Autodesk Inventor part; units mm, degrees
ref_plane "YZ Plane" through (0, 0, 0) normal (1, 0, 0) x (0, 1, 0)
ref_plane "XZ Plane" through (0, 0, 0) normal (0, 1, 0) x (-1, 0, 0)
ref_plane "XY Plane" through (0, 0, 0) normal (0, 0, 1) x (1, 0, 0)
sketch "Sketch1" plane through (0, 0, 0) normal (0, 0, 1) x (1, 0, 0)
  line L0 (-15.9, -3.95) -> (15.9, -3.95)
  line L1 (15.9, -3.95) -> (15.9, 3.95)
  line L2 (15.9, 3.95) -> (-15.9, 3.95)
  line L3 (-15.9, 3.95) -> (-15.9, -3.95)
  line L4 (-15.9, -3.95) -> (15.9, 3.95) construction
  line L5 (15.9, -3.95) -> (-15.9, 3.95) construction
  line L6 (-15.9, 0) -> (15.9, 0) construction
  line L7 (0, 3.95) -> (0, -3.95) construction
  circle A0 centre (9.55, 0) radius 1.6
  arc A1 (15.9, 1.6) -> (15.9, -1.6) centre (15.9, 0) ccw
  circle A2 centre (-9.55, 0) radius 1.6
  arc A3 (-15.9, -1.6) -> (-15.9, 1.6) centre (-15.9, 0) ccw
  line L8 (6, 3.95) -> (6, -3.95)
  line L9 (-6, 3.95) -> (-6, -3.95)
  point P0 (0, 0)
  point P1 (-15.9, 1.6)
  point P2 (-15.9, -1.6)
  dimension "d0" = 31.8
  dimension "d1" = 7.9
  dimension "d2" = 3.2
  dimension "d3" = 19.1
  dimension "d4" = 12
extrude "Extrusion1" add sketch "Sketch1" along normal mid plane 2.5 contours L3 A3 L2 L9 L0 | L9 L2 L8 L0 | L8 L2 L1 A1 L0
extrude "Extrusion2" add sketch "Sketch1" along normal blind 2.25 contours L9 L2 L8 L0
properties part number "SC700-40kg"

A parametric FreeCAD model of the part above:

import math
import FreeCAD as App
import Part
import Sketcher
from FreeCAD import Vector


def add_polygon(sketch, points):
    """Adds a closed chain of lines whose ends are joined by coincident constraints."""
    first, n = sketch.GeometryCount, len(points)
    for a, b in zip(points, points[1:] + points[:1]):
        sketch.addGeometry(Part.LineSegment(App.Vector(*a, 0), App.Vector(*b, 0)), False)
    for i in range(n):
        sketch.addConstraint(Sketcher.Constraint("Coincident", first + i, 2, first + (i + 1) % n, 1))

doc = App.newDocument("Part")
body = doc.addObject("PartDesign::Body", "Body")

sketch1 = body.newObject("Sketcher::SketchObject", "Sketch")
sketch1.AttachmentSupport = (doc.getObject("XY_Plane"), [""])
sketch1.MapMode = "FlatFace"
sketch1.addGeometry([
    Part.LineSegment(Vector(-15.9, -1.6, 0), Vector(-15.9, -4, 0)),
    Part.LineSegment(Vector(-15.9, -4, 0), Vector(15.9, -4, 0)),
    Part.LineSegment(Vector(15.9, -4, 0), Vector(15.9, -1.6, 0)),
    Part.ArcOfCircle(Part.Circle(Vector(15.9, 0, 0), Vector(0, 0, 1), 1.6), math.radians(90), math.radians(270)),
    Part.LineSegment(Vector(15.9, 1.6, 0), Vector(15.9, 4, 0)),
    Part.LineSegment(Vector(15.9, 4, 0), Vector(-15.9, 4, 0)),
    Part.LineSegment(Vector(-15.9, 4, 0), Vector(-15.9, 1.6, 0)),
    Part.ArcOfCircle(Part.Circle(Vector(-15.9, 0, 0), Vector(0, 0, 1), 1.6), math.radians(-90), math.radians(90)),
    Part.Circle(Vector(-9.6, 0, 0), Vector(0, 0, 1), 1.6),
    Part.Circle(Vector(9.6, 0, 0), Vector(0, 0, 1), 1.6),
], False)
sketch1.addConstraint([
    Sketcher.Constraint("Coincident", 0, 2, 1, 1),
    Sketcher.Constraint("Coincident", 1, 2, 2, 1),
    Sketcher.Constraint("Coincident", 2, 2, 3, 2),
    Sketcher.Constraint("Coincident", 3, 1, 4, 1),
    Sketcher.Constraint("Coincident", 4, 2, 5, 1),
    Sketcher.Constraint("Coincident", 5, 2, 6, 1),
    Sketcher.Constraint("Coincident", 6, 2, 7, 2),
    Sketcher.Constraint("Coincident", 7, 1, 0, 1),
    Sketcher.Constraint("Vertical", 0),
    Sketcher.Constraint("Horizontal", 1),
    Sketcher.Constraint("Vertical", 2),
    Sketcher.Constraint("Vertical", 4),
    Sketcher.Constraint("Horizontal", 5),
    Sketcher.Constraint("Vertical", 6),
    Sketcher.Constraint("Equal", 3, 7),
    Sketcher.Constraint("Equal", 7, 8),
    Sketcher.Constraint("Equal", 8, 9),
    Sketcher.Constraint("Symmetric", 3, 3, 7, 3, -1, 1),
    Sketcher.Constraint("Symmetric", 8, 3, 9, 3, -1, 1),
    Sketcher.Constraint("Symmetric", 0, 2, 4, 2, -1, 1),
    Sketcher.Constraint("Symmetric", 3, 1, 6, 2, -2),
    Sketcher.Constraint("PointOnObject", 8, 3, -1),
    Sketcher.Constraint("Vertical", 7, 3, 0, 2),
    Sketcher.Constraint("Vertical", 3, 3, 1, 2),
    Sketcher.Constraint("Diameter", 8, 3.2),
    Sketcher.Constraint("DistanceX", 1, 1, 1, 2, 31.8),
    Sketcher.Constraint("DistanceX", 8, 3, 9, 3, 19.1),
    Sketcher.Constraint("DistanceY", 1, 2, 4, 2, 7.9),
])
pad1 = body.newObject("PartDesign::Pad", "Pad")
pad1.Profile = sketch1
pad1.Length = 2.5
pad1.Midplane = True

sketch2 = body.newObject("Sketcher::SketchObject", "Sketch001")
sketch2.AttachmentSupport = (doc.getObject("XY_Plane"), [""])
sketch2.MapMode = "FlatFace"
add_polygon(sketch2, [(-6, 4), (-6, -4), (6, -4), (6, 4)])
sketch2.addConstraint([
    Sketcher.Constraint("Vertical", 0),
    Sketcher.Constraint("Horizontal", 1),
    Sketcher.Constraint("Vertical", 2),
    Sketcher.Constraint("Horizontal", 3),
    Sketcher.Constraint("Symmetric", 0, 2, 2, 2, -1, 1),
    Sketcher.Constraint("DistanceX", 1, 1, 1, 2, 12.0),
    Sketcher.Constraint("DistanceY", 0, 2, 0, 1, 7.9),
])
pad2 = body.newObject("PartDesign::Pad", "Pad001")
pad2.Profile = sketch2
pad2.Length = 2.25

doc.recompute()
